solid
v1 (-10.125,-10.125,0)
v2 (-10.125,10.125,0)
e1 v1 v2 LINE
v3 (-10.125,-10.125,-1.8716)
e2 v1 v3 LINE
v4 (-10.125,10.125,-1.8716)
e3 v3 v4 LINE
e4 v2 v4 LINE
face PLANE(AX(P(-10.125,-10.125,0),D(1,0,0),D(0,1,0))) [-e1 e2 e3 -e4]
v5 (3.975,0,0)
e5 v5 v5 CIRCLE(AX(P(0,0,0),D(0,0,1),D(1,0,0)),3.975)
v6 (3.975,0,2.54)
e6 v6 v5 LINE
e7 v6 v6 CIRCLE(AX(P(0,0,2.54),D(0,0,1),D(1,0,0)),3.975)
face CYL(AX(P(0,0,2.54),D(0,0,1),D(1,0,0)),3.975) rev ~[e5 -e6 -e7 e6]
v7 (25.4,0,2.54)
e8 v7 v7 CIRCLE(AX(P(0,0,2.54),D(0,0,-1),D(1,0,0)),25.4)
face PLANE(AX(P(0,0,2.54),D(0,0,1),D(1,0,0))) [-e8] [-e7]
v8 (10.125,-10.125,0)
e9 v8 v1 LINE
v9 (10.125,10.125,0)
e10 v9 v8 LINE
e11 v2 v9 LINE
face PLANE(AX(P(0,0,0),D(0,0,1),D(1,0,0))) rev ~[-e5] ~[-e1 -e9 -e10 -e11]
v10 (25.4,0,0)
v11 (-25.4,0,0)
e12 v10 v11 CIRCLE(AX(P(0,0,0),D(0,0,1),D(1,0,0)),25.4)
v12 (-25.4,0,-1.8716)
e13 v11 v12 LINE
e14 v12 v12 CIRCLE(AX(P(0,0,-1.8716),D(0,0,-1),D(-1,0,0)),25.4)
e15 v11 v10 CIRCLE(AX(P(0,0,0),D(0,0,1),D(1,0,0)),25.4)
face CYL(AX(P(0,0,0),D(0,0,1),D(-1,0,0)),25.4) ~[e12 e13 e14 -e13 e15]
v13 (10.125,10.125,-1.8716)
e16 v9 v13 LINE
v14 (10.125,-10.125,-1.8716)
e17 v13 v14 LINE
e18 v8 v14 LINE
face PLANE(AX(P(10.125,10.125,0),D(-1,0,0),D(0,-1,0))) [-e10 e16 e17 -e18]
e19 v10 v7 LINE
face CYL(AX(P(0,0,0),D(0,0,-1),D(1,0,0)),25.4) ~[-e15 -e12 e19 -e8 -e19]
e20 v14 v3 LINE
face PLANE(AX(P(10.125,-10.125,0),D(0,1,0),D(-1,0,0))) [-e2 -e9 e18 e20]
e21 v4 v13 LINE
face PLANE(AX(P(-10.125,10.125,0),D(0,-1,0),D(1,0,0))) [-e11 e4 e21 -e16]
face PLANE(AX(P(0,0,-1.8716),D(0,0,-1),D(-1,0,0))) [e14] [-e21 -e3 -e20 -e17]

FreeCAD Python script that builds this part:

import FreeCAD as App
import Part
import Sketcher
Q = App.Units.Quantity


def add_polygon(sketch, points):
    """Adds a closed chain of lines whose ends are joined by coincident constraints."""
    first, n = sketch.GeometryCount, len(points)
    for a, b in zip(points, points[1:] + points[:1]):
        sketch.addGeometry(Part.LineSegment(App.Vector(*a, 0), App.Vector(*b, 0)), False)
    for i in range(n):
        sketch.addConstraint(Sketcher.Constraint("Coincident", first + i, 2, first + (i + 1) % n, 1))

doc = App.newDocument("Part")
body = doc.addObject("PartDesign::Body", "Body")

sketch1 = body.newObject("Sketcher::SketchObject", "Sketch")
sketch1.AttachmentSupport = (doc.getObject("XY_Plane"), [""])
sketch1.MapMode = "FlatFace"
sketch1.addGeometry(Part.Circle(App.Vector(0, 0, 0), App.Vector(0, 0, 1), 25), False)
sketch1.addConstraint(Sketcher.Constraint("Coincident", 0, 3, -1, 1))
sketch1.addConstraint(Sketcher.Constraint("Diameter", 0, Q("2 in")))
pad1 = body.newObject("PartDesign::Pad", "Pad")
pad1.Profile = sketch1
pad1.Length = Q("0.1 in")

sketch2 = body.newObject("Sketcher::SketchObject", "Sketch001")
sketch2.AttachmentSupport = (doc.getObject("XY_Plane"), [""])
sketch2.MapMode = "FlatFace"
sketch2.AttachmentOffset = App.Placement(App.Vector(0, 0, 0.1 * 25.4), App.Rotation())
sketch2.addGeometry(Part.Circle(App.Vector(0, 0, 0), App.Vector(0, 0, 1), 4), False)
sketch2.addConstraint(Sketcher.Constraint("Coincident", 0, 3, -1, 1))
sketch2.addConstraint(Sketcher.Constraint("Diameter", 0, Q("0.313 in")))
pocket1 = body.newObject("PartDesign::Pocket", "Pocket")
pocket1.Profile = sketch2
pocket1.Length = Q("0.1 in")

sketch3 = body.newObject("Sketcher::SketchObject", "Sketch002")
sketch3.AttachmentSupport = (doc.getObject("XY_Plane"), [""])
sketch3.MapMode = "FlatFace"
sketch3.addGeometry(Part.Circle(App.Vector(0, 0, 0), App.Vector(0, 0, 1), 25), False)
add_polygon(sketch3, [(-10, -10), (10, -10), (10, 10), (-10, 10)])
sketch3.addConstraint(Sketcher.Constraint("Horizontal", 1))
sketch3.addConstraint(Sketcher.Constraint("Vertical", 2))
sketch3.addConstraint(Sketcher.Constraint("Horizontal", 3))
sketch3.addConstraint(Sketcher.Constraint("Vertical", 4))
sketch3.addConstraint(Sketcher.Constraint("Coincident", 0, 3, -1, 1))
sketch3.addConstraint(Sketcher.Constraint("Symmetric", 1, 2, 3, 2, -1, 1))
sketch3.addConstraint(Sketcher.Constraint("Equal", 3, 2))
sketch3.addConstraint(Sketcher.Constraint("Diameter", 0, Q("2 in")))
sketch3.addConstraint(Sketcher.Constraint("DistanceX", 1, 1, 1, 2, Q("20.25 mm")))
pad2 = body.newObject("PartDesign::Pad", "Pad001")
pad2.Profile = sketch3
pad2.Length = 1.8716
pad2.Reversed = True

doc.recompute()
